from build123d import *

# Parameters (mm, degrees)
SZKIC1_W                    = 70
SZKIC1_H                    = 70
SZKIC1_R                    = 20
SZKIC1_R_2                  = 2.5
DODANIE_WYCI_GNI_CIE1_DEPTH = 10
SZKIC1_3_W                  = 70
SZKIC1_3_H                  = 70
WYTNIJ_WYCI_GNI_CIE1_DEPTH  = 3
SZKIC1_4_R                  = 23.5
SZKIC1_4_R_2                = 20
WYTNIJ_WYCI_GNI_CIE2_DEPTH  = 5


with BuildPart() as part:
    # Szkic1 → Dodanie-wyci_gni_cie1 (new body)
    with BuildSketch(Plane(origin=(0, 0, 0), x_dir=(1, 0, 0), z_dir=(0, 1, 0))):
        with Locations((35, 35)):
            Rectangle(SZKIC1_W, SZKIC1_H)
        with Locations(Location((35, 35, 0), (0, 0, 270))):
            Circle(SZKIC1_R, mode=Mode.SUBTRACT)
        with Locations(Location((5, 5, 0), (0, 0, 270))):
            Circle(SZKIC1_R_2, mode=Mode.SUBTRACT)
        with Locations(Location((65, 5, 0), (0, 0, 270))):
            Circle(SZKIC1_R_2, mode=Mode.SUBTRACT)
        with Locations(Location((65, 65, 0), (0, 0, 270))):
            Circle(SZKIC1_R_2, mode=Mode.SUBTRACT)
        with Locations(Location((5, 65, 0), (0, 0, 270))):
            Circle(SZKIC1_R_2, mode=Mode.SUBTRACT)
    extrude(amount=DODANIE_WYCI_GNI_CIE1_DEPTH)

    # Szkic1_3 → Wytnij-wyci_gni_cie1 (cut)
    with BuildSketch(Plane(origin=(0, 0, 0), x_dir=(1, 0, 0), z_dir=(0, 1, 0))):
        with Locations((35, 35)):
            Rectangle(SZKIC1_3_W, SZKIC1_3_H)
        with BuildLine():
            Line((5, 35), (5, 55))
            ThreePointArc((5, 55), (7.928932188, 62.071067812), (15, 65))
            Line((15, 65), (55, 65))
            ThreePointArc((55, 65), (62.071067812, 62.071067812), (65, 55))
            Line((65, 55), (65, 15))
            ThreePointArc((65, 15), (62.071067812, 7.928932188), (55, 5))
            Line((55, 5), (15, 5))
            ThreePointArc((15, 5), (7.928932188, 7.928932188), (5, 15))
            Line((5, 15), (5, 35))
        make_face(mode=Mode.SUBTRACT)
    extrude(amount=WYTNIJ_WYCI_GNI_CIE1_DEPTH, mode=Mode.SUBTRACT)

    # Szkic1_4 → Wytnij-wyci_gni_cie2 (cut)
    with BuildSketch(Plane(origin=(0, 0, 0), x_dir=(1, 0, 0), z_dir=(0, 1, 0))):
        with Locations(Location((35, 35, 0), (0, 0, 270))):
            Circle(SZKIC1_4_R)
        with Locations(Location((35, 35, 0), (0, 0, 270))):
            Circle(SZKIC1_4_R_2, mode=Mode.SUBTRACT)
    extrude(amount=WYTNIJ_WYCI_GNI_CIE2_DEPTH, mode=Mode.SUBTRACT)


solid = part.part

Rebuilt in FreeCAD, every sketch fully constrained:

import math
import FreeCAD as App
import Part
import Sketcher
from FreeCAD import Vector

doc = App.newDocument("Part")
body = doc.addObject("PartDesign::Body", "Body")

sketch1 = body.newObject("Sketcher::SketchObject", "Sketch")
sketch1.AttachmentSupport = (doc.getObject("XZ_Plane"), [""])
sketch1.MapMode = "FlatFace"
sketch1.addGeometry(Part.LineSegment(Vector(0, -70, 0), Vector(0, 0, 0)), False)
sketch1.addGeometry(Part.LineSegment(Vector(0, 0, 0), Vector(70, 0, 0)), False)
sketch1.addGeometry(Part.LineSegment(Vector(70, 0, 0), Vector(70, -70, 0)), False)
sketch1.addGeometry(Part.LineSegment(Vector(70, -70, 0), Vector(0, -70, 0)), False)
sketch1.addGeometry(Part.Circle(Vector(5, -5, 0), Vector(0, 0, 1), 2.5), False)
sketch1.addGeometry(Part.Circle(Vector(65, -5, 0), Vector(0, 0, 1), 2.5), False)
sketch1.addGeometry(Part.Circle(Vector(5, -65, 0), Vector(0, 0, 1), 2.5), False)
sketch1.addGeometry(Part.Circle(Vector(35, -35, 0), Vector(0, 0, 1), 20), False)
sketch1.addGeometry(Part.Circle(Vector(65, -65, 0), Vector(0, 0, 1), 2.5), False)
sketch1.addConstraint(Sketcher.Constraint("Coincident", 0, 2, 1, 1))
sketch1.addConstraint(Sketcher.Constraint("Coincident", 1, 2, 2, 1))
sketch1.addConstraint(Sketcher.Constraint("Coincident", 2, 2, 3, 1))
sketch1.addConstraint(Sketcher.Constraint("Coincident", 3, 2, 0, 1))
sketch1.addConstraint(Sketcher.Constraint("Vertical", 0))
sketch1.addConstraint(Sketcher.Constraint("Horizontal", 1))
sketch1.addConstraint(Sketcher.Constraint("Vertical", 2))
sketch1.addConstraint(Sketcher.Constraint("Horizontal", 3))
sketch1.addConstraint(Sketcher.Constraint("Coincident", 0, 2, -1, 1))
sketch1.addConstraint(Sketcher.Constraint("Equal", 4, 5))
sketch1.addConstraint(Sketcher.Constraint("Equal", 5, 6))
sketch1.addConstraint(Sketcher.Constraint("Equal", 6, 8))
sketch1.addConstraint(Sketcher.Constraint("Horizontal", 4, 3, 5, 3))
sketch1.addConstraint(Sketcher.Constraint("Horizontal", 6, 3, 8, 3))
sketch1.addConstraint(Sketcher.Constraint("Vertical", 4, 3, 6, 3))
sketch1.addConstraint(Sketcher.Constraint("Vertical", 5, 3, 8, 3))
sketch1.addConstraint(Sketcher.Constraint("Equal", 3, 0))
sketch1.addConstraint(Sketcher.Constraint("Diameter", 4, 5.0))
sketch1.addConstraint(Sketcher.Constraint("Diameter", 7, 40.0))
sketch1.addConstraint(Sketcher.Constraint("DistanceX", 1, 1, 1, 2, 70.0))
sketch1.addConstraint(Sketcher.Constraint("DistanceX", -1, 1, 4, 3, 5.0))
sketch1.addConstraint(Sketcher.Constraint("DistanceY", 4, 3, -1, 1, 5.0))
sketch1.addConstraint(Sketcher.Constraint("DistanceX", -1, 1, 5, 3, 65.0))
sketch1.addConstraint(Sketcher.Constraint("DistanceY", 6, 3, -1, 1, 65.0))
sketch1.addConstraint(Sketcher.Constraint("DistanceX", -1, 1, 7, 3, 35.0))
sketch1.addConstraint(Sketcher.Constraint("DistanceY", 7, 3, -1, 1, 35.0))
pad1 = body.newObject("PartDesign::Pad", "Pad")
pad1.Profile = sketch1
pad1.Length = 10
pad1.Reversed = True

sketch2 = body.newObject("Sketcher::SketchObject", "Sketch001")
sketch2.AttachmentSupport = (doc.getObject("XZ_Plane"), [""])
sketch2.MapMode = "FlatFace"
sketch2.addGeometry(Part.LineSegment(Vector(0, -70, 0), Vector(0, 0, 0)), False)
sketch2.addGeometry(Part.LineSegment(Vector(0, 0, 0), Vector(70, 0, 0)), False)
sketch2.addGeometry(Part.LineSegment(Vector(70, 0, 0), Vector(70, -70, 0)), False)
sketch2.addGeometry(Part.LineSegment(Vector(70, -70, 0), Vector(0, -70, 0)), False)
sketch2.addGeometry(Part.LineSegment(Vector(5, -15, 0), Vector(5, -55, 0)), False)
sketch2.addGeometry(Part.ArcOfCircle(Part.Circle(Vector(15, -55, 0), Vector(0, 0, 1), 10), math.radians(180), math.radians(270)), False)
sketch2.addGeometry(Part.LineSegment(Vector(15, -65, 0), Vector(55, -65, 0)), False)
sketch2.addGeometry(Part.ArcOfCircle(Part.Circle(Vector(55, -55, 0), Vector(0, 0, 1), 10), math.radians(-90), math.radians(0)), False)
sketch2.addGeometry(Part.LineSegment(Vector(65, -55, 0), Vector(65, -15, 0)), False)
sketch2.addGeometry(Part.ArcOfCircle(Part.Circle(Vector(55, -15, 0), Vector(0, 0, 1), 10), math.radians(0), math.radians(90)), False)
sketch2.addGeometry(Part.LineSegment(Vector(55, -5, 0), Vector(15, -5, 0)), False)
sketch2.addGeometry(Part.ArcOfCircle(Part.Circle(Vector(15, -15, 0), Vector(0, 0, 1), 10), math.radians(90), math.radians(180)), False)
sketch2.addConstraint(Sketcher.Constraint("Coincident", 0, 2, 1, 1))
sketch2.addConstraint(Sketcher.Constraint("Coincident", 1, 2, 2, 1))
sketch2.addConstraint(Sketcher.Constraint("Coincident", 2, 2, 3, 1))
sketch2.addConstraint(Sketcher.Constraint("Coincident", 3, 2, 0, 1))
sketch2.addConstraint(Sketcher.Constraint("Tangent", 4, 2, 5, 1))
sketch2.addConstraint(Sketcher.Constraint("Tangent", 5, 2, 6, 1))
sketch2.addConstraint(Sketcher.Constraint("Tangent", 6, 2, 7, 1))
sketch2.addConstraint(Sketcher.Constraint("Tangent", 7, 2, 8, 1))
sketch2.addConstraint(Sketcher.Constraint("Tangent", 8, 2, 9, 1))
sketch2.addConstraint(Sketcher.Constraint("Tangent", 9, 2, 10, 1))
sketch2.addConstraint(Sketcher.Constraint("Tangent", 10, 2, 11, 1))
sketch2.addConstraint(Sketcher.Constraint("Tangent", 11, 2, 4, 1))
sketch2.addConstraint(Sketcher.Constraint("Vertical", 0))
sketch2.addConstraint(Sketcher.Constraint("Horizontal", 1))
sketch2.addConstraint(Sketcher.Constraint("Vertical", 2))
sketch2.addConstraint(Sketcher.Constraint("Horizontal", 3))
sketch2.addConstraint(Sketcher.Constraint("Vertical", 4))
sketch2.addConstraint(Sketcher.Constraint("Horizontal", 6))
sketch2.addConstraint(Sketcher.Constraint("Vertical", 8))
sketch2.addConstraint(Sketcher.Constraint("Horizontal", 10))
sketch2.addConstraint(Sketcher.Constraint("Coincident", 0, 2, -1, 1))
sketch2.addConstraint(Sketcher.Constraint("Equal", 5, 7))
sketch2.addConstraint(Sketcher.Constraint("Equal", 7, 9))
sketch2.addConstraint(Sketcher.Constraint("Equal", 9, 11))
sketch2.addConstraint(Sketcher.Constraint("Equal", 3, 0))
sketch2.addConstraint(Sketcher.Constraint("Equal", 10, 4))
sketch2.addConstraint(Sketcher.Constraint("Radius", 5, 10.0))
sketch2.addConstraint(Sketcher.Constraint("DistanceX", 1, 1, 1, 2, 70.0))
sketch2.addConstraint(Sketcher.Constraint("DistanceX", 6, 1, 6, 2, 40.0))
sketch2.addConstraint(Sketcher.Constraint("DistanceX", -1, 1, 5, 3, 15.0))
sketch2.addConstraint(Sketcher.Constraint("DistanceY", 5, 3, -1, 1, 55.0))
pocket1 = body.newObject("PartDesign::Pocket", "Pocket")
pocket1.Profile = sketch2
pocket1.Length = 3

sketch3 = body.newObject("Sketcher::SketchObject", "Sketch002")
sketch3.AttachmentSupport = (doc.getObject("XZ_Plane"), [""])
sketch3.MapMode = "FlatFace"
sketch3.addGeometry(Part.Circle(Vector(35, -35, 0), Vector(0, 0, 1), 24), False)
sketch3.addGeometry(Part.Circle(Vector(35, -35, 0), Vector(0, 0, 1), 20), False)
sketch3.addConstraint(Sketcher.Constraint("Coincident", 1, 3, 0, 3))
sketch3.addConstraint(Sketcher.Constraint("Diameter", 0, 47.0))
sketch3.addConstraint(Sketcher.Constraint("Diameter", 1, 40.0))
sketch3.addConstraint(Sketcher.Constraint("DistanceX", -1, 1, 0, 3, 35.0))
sketch3.addConstraint(Sketcher.Constraint("DistanceY", 0, 3, -1, 1, 35.0))
pocket2 = body.newObject("PartDesign::Pocket", "Pocket001")
pocket2.Profile = sketch3
pocket2.Length = 5

doc.recompute()
